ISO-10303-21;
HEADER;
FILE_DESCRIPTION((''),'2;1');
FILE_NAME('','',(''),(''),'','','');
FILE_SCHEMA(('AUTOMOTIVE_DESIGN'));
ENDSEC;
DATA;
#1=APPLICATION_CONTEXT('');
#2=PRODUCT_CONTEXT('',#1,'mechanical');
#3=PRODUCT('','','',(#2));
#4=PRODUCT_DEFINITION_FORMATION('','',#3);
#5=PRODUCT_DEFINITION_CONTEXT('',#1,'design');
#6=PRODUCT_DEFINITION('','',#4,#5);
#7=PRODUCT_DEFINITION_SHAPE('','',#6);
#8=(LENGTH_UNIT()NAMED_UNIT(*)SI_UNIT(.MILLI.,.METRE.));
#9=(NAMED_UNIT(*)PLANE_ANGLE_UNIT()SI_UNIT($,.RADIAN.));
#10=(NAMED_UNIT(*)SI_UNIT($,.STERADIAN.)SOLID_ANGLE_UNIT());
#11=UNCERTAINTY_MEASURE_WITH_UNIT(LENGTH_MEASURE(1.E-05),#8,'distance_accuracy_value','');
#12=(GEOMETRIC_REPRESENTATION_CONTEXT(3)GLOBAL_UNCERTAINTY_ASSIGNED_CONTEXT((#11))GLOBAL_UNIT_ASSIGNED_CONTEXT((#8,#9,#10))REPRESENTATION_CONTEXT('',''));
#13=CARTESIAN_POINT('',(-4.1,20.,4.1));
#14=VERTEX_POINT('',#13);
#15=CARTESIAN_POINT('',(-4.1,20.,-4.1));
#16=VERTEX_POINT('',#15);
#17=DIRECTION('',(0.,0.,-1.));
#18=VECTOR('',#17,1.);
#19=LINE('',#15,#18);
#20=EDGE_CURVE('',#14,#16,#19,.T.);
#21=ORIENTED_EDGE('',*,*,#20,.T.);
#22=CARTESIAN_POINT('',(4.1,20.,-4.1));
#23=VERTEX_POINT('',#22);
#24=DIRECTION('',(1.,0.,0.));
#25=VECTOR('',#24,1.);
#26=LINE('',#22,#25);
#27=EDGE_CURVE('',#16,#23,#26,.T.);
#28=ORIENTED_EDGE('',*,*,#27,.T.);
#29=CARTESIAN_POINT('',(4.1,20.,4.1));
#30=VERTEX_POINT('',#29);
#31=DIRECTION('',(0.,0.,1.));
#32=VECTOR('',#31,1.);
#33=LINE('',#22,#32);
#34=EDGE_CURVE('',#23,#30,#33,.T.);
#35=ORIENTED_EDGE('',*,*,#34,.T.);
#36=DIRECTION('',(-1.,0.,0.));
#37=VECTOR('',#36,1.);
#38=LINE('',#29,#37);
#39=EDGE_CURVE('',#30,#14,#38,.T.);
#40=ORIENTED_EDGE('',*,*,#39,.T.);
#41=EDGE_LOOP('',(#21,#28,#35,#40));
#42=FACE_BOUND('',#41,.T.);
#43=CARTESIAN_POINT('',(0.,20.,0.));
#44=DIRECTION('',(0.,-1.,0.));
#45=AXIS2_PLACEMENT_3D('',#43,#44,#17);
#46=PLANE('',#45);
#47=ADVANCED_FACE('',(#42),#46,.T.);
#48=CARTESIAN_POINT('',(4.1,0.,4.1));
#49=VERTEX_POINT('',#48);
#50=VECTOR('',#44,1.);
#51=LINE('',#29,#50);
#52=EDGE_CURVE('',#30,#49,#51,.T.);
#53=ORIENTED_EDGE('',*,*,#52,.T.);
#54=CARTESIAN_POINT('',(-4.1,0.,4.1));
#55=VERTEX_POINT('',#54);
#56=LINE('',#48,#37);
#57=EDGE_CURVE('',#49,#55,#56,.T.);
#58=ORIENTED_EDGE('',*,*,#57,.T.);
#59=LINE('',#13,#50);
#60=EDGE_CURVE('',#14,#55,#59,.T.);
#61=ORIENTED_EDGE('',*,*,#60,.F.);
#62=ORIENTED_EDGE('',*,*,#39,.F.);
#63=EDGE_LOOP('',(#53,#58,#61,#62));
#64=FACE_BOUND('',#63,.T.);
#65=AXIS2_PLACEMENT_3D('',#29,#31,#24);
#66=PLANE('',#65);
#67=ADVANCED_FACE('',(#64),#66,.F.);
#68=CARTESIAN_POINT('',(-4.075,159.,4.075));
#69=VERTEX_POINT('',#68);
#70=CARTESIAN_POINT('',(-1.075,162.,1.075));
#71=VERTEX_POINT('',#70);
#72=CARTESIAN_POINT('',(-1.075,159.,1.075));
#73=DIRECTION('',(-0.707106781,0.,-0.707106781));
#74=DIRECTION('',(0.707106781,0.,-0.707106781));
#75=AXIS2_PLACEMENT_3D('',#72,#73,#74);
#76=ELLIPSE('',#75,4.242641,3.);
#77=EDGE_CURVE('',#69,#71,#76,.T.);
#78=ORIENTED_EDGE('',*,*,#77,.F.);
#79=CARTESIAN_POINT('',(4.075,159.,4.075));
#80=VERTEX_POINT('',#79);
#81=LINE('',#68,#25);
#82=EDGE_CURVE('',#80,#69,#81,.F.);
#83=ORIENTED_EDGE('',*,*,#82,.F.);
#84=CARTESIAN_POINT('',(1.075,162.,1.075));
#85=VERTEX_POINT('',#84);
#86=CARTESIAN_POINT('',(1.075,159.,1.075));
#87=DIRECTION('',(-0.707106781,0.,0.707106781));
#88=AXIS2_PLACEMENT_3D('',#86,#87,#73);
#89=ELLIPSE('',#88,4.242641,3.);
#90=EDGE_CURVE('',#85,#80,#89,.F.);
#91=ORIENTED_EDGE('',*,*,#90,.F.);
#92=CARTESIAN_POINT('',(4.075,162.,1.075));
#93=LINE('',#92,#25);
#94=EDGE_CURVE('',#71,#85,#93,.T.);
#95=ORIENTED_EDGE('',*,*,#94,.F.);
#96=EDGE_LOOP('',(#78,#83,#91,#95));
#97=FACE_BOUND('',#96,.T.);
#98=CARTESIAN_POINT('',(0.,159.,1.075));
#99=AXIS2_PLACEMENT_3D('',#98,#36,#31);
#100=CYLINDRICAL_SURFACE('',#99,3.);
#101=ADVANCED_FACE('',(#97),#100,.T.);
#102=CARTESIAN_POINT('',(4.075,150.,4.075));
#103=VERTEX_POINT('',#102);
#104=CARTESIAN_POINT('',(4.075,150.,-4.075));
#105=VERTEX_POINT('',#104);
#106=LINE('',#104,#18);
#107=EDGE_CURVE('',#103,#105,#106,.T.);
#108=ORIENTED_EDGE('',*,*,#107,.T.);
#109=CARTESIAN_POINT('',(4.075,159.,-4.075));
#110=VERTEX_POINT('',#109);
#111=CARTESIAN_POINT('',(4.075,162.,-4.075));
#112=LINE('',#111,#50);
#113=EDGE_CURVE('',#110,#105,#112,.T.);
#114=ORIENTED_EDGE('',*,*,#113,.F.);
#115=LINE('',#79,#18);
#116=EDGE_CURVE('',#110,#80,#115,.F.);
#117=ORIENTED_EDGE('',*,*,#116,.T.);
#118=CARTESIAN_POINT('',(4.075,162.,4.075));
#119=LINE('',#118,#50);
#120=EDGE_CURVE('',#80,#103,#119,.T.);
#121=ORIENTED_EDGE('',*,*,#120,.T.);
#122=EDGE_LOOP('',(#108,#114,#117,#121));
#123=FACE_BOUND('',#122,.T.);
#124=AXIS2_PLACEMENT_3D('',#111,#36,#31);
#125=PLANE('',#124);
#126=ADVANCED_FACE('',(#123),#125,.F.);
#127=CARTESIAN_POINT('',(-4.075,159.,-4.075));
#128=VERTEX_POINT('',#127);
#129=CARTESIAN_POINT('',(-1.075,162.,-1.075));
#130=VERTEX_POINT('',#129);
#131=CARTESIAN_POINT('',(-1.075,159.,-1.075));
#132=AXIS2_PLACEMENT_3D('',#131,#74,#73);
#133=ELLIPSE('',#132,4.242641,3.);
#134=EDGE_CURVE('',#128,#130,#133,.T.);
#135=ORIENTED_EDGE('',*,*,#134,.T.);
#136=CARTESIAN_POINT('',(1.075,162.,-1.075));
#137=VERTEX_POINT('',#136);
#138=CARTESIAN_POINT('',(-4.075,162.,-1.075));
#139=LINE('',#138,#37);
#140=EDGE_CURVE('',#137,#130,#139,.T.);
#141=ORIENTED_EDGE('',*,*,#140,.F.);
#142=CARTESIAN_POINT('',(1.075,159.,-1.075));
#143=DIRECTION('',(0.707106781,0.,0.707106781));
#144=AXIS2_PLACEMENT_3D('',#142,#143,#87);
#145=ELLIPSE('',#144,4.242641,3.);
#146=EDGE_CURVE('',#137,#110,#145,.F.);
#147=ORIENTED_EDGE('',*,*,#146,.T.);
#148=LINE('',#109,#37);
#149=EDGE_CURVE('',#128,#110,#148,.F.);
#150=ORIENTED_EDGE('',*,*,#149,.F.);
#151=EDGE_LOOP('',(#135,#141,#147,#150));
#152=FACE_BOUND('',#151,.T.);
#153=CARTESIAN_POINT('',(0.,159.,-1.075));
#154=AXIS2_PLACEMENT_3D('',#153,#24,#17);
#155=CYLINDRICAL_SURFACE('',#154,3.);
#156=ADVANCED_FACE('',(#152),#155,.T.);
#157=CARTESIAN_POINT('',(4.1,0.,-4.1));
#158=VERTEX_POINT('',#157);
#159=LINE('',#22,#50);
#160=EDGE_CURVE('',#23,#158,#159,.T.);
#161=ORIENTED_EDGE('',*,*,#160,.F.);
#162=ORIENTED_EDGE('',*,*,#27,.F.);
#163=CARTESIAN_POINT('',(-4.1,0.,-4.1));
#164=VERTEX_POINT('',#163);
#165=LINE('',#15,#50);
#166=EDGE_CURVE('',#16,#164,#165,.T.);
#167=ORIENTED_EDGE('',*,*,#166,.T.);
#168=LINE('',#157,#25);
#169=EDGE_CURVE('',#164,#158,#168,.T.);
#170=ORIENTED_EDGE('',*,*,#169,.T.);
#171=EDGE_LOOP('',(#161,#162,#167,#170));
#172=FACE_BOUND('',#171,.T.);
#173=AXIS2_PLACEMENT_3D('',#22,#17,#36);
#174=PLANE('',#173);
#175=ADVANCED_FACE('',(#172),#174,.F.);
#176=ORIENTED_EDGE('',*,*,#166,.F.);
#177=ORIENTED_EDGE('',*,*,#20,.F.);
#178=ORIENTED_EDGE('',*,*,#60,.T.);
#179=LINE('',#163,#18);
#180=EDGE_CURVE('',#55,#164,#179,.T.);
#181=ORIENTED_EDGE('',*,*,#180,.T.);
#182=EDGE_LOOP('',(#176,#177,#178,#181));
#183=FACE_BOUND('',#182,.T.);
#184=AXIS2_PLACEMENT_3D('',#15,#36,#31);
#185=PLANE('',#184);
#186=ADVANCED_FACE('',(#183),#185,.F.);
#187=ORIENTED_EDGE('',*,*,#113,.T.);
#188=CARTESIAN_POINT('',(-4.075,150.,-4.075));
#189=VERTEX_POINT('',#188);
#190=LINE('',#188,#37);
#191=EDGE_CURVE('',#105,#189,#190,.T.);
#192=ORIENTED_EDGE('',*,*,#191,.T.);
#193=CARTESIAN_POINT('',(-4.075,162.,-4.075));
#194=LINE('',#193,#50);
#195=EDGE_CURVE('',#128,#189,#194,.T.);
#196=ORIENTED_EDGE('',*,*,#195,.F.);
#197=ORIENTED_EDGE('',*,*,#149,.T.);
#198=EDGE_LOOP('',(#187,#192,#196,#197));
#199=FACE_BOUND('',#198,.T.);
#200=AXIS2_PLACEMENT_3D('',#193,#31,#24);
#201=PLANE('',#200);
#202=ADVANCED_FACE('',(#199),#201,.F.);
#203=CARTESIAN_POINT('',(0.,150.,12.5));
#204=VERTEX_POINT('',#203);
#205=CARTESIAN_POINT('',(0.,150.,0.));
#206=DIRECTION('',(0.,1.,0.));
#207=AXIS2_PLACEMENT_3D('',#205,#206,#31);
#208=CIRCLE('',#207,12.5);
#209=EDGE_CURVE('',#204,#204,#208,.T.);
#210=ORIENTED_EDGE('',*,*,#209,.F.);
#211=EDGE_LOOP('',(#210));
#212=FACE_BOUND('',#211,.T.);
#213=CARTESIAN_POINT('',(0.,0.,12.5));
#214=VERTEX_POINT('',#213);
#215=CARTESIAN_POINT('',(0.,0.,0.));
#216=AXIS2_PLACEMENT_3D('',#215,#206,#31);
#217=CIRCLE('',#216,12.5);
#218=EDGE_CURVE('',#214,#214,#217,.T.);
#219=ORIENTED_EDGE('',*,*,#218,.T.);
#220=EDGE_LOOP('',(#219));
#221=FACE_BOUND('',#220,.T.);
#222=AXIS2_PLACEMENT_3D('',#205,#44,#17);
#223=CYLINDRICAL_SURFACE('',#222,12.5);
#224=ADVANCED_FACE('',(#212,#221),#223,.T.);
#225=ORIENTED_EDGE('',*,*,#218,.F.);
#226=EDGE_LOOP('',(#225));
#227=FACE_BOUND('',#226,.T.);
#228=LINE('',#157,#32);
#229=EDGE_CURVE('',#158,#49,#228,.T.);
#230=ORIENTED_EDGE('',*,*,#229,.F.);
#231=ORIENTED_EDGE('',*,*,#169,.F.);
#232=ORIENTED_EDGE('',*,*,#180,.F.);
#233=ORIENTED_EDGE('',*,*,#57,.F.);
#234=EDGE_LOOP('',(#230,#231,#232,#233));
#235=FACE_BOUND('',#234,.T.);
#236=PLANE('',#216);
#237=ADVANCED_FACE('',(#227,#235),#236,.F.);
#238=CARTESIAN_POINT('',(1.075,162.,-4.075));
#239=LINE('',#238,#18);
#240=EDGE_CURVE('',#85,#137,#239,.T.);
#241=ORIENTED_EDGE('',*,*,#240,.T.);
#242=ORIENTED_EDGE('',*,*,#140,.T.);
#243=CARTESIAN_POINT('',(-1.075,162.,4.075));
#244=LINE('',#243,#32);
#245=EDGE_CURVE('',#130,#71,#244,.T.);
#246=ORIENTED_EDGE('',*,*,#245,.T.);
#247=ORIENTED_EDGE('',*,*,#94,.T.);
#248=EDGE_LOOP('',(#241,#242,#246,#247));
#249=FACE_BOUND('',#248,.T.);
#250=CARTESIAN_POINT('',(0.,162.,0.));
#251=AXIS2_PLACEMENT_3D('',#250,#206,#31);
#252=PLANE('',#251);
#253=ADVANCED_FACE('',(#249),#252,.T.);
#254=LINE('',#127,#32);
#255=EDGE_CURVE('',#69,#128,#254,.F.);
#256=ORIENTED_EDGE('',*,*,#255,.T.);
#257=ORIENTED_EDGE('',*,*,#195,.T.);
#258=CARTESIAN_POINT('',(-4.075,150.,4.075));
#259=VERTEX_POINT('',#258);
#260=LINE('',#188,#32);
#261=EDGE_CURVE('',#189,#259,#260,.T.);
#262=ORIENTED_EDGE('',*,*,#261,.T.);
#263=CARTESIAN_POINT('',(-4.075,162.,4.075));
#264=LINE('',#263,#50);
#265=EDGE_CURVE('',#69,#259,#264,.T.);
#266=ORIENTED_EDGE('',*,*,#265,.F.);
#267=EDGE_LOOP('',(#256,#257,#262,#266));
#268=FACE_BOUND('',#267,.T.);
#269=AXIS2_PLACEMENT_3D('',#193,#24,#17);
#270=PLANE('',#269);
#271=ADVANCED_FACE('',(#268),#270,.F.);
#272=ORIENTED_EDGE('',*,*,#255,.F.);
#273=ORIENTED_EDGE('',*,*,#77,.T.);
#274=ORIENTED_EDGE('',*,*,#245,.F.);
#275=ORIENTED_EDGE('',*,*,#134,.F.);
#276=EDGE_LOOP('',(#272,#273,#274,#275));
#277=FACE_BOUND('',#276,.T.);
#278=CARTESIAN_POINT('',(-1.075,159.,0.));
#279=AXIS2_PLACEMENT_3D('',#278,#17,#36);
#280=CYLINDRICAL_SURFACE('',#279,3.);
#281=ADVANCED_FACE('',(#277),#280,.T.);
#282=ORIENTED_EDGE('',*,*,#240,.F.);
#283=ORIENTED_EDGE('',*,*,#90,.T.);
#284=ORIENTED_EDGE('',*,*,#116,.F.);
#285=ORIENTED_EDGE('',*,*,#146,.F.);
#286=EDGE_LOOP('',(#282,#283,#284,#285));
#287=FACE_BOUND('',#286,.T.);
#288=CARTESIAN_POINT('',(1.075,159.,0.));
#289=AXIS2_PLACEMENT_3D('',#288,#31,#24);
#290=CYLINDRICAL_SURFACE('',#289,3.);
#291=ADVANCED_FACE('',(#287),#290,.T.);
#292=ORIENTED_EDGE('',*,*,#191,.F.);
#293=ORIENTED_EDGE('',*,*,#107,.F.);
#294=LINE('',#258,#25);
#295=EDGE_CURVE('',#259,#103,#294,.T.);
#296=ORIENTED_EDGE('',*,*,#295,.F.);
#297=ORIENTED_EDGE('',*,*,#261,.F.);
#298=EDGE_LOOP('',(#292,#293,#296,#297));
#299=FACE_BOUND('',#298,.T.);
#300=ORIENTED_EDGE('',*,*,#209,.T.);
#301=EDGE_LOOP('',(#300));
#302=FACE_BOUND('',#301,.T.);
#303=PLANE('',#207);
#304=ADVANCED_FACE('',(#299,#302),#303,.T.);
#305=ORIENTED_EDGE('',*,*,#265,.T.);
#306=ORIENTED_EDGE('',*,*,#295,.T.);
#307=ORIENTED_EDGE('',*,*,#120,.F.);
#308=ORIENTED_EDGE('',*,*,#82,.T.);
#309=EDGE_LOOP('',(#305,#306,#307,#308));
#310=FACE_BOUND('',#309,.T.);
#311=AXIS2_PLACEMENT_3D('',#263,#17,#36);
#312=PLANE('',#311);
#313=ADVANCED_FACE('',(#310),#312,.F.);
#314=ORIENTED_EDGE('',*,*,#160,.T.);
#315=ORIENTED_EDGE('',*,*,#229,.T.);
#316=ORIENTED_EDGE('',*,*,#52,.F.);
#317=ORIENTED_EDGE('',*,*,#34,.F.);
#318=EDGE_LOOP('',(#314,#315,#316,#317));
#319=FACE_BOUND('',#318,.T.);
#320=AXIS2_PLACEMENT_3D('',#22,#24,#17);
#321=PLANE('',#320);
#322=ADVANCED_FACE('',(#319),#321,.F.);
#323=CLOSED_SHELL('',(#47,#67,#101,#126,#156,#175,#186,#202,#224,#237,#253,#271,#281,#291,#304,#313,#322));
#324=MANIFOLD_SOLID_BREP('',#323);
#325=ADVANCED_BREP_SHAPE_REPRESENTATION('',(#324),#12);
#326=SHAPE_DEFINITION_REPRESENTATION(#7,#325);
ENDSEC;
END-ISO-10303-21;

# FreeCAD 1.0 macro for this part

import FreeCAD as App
import Part
import Sketcher
Q = App.Units.Quantity


def edges_at(feature, points):
    """Names of the edges that pass closest to the given points."""
    edges = feature.Shape.Edges
    near = lambda p: min(range(len(edges)), key=lambda i: edges[i].distToShape(Part.Vertex(*p))[0])
    return sorted({f"Edge{near(p) + 1}" for p in points})

doc = App.newDocument("Part")
body = doc.addObject("PartDesign::Body", "Body")

# Sketch on XZ plane
sketch1 = doc.addObject("Sketcher::SketchObject", "Sketch")
body.addObject(sketch1)
sketch1.AttachmentSupport = (doc.XZ_Plane, [""])
sketch1.MapMode = "FlatFace"
sketch1.addGeometry(Part.Circle(App.Vector(0, 0, 0), App.Vector(0, 0, 1), 12), False)
sketch1.addConstraint(Sketcher.Constraint("Coincident", 0, 3, -1, 1))
sketch1.addConstraint(Sketcher.Constraint("Diameter", 0, Q("25 mm")))
pad1 = doc.addObject("PartDesign::Pad", "Pad")
body.addObject(pad1)
pad1.Profile = sketch1
pad1.Length = 150
pad1.Reversed = True

# Sketch on XZ plane
sketch2 = doc.addObject("Sketcher::SketchObject", "Sketch001")
body.addObject(sketch2)
sketch2.AttachmentSupport = (doc.XZ_Plane, [""])
sketch2.MapMode = "FlatFace"
sketch2.AttachmentOffset = App.Placement(App.Vector(0, 0, -150), App.Rotation())
sketch2.addGeometry(Part.LineSegment(App.Vector(-4, -4, 0), App.Vector(-4, 4, 0)), False)
sketch2.addGeometry(Part.LineSegment(App.Vector(-4, 4, 0), App.Vector(4, 4, 0)), False)
sketch2.addGeometry(Part.LineSegment(App.Vector(4, 4, 0), App.Vector(4, -4, 0)), False)
sketch2.addGeometry(Part.LineSegment(App.Vector(4, -4, 0), App.Vector(-4, -4, 0)), False)
sketch2.addConstraint(Sketcher.Constraint("Coincident", 0, 2, 1, 1))
sketch2.addConstraint(Sketcher.Constraint("Coincident", 1, 2, 2, 1))
sketch2.addConstraint(Sketcher.Constraint("Coincident", 2, 2, 3, 1))
sketch2.addConstraint(Sketcher.Constraint("Coincident", 3, 2, 0, 1))
sketch2.addConstraint(Sketcher.Constraint("Vertical", 0))
sketch2.addConstraint(Sketcher.Constraint("Horizontal", 1))
sketch2.addConstraint(Sketcher.Constraint("Vertical", 2))
sketch2.addConstraint(Sketcher.Constraint("Horizontal", 3))
sketch2.addConstraint(Sketcher.Constraint("Symmetric", 0, 2, 2, 2, -1, 1))
sketch2.addConstraint(Sketcher.Constraint("Equal", 3, 0))
sketch2.addConstraint(Sketcher.Constraint("DistanceX", 1, 1, 1, 2, Q("8.15 mm")))
pad2 = doc.addObject("PartDesign::Pad", "Pad001")
body.addObject(pad2)
pad2.Profile = sketch2
pad2.Length = 12
pad2.Reversed = True
doc.recompute()

fillet = doc.addObject("PartDesign::Fillet", "Fillet")
body.addObject(fillet)
fillet.Base = (pad2, edges_at(pad2, [
    (4.075, 162, 0),
    (0, 162, -4.075),
    (-4.075, 162, 0),
    (0, 162, 4.075),
]))
fillet.Radius = 3

# Sketch on XZ plane
sketch3 = doc.addObject("Sketcher::SketchObject", "Sketch002")
body.addObject(sketch3)
sketch3.AttachmentSupport = (doc.XZ_Plane, [""])
sketch3.MapMode = "FlatFace"
sketch3.addGeometry(Part.LineSegment(App.Vector(-4, 4, 0), App.Vector(-4, -4, 0)), False)
sketch3.addGeometry(Part.LineSegment(App.Vector(-4, -4, 0), App.Vector(4, -4, 0)), False)
sketch3.addGeometry(Part.LineSegment(App.Vector(4, -4, 0), App.Vector(4, 4, 0)), False)
sketch3.addGeometry(Part.LineSegment(App.Vector(4, 4, 0), App.Vector(-4, 4, 0)), False)
sketch3.addConstraint(Sketcher.Constraint("Coincident", 0, 2, 1, 1))
sketch3.addConstraint(Sketcher.Constraint("Coincident", 1, 2, 2, 1))
sketch3.addConstraint(Sketcher.Constraint("Coincident", 2, 2, 3, 1))
sketch3.addConstraint(Sketcher.Constraint("Coincident", 3, 2, 0, 1))
sketch3.addConstraint(Sketcher.Constraint("Vertical", 0))
sketch3.addConstraint(Sketcher.Constraint("Horizontal", 1))
sketch3.addConstraint(Sketcher.Constraint("Vertical", 2))
sketch3.addConstraint(Sketcher.Constraint("Horizontal", 3))
sketch3.addConstraint(Sketcher.Constraint("Symmetric", 0, 2, 2, 2, -1, 1))
sketch3.addConstraint(Sketcher.Constraint("Equal", 3, 0))
sketch3.addConstraint(Sketcher.Constraint("DistanceX", 1, 1, 1, 2, Q("8.2 mm")))
pocket1 = doc.addObject("PartDesign::Pocket", "Pocket")
body.addObject(pocket1)
pocket1.Profile = sketch3
pocket1.Length = 20

doc.recompute()
